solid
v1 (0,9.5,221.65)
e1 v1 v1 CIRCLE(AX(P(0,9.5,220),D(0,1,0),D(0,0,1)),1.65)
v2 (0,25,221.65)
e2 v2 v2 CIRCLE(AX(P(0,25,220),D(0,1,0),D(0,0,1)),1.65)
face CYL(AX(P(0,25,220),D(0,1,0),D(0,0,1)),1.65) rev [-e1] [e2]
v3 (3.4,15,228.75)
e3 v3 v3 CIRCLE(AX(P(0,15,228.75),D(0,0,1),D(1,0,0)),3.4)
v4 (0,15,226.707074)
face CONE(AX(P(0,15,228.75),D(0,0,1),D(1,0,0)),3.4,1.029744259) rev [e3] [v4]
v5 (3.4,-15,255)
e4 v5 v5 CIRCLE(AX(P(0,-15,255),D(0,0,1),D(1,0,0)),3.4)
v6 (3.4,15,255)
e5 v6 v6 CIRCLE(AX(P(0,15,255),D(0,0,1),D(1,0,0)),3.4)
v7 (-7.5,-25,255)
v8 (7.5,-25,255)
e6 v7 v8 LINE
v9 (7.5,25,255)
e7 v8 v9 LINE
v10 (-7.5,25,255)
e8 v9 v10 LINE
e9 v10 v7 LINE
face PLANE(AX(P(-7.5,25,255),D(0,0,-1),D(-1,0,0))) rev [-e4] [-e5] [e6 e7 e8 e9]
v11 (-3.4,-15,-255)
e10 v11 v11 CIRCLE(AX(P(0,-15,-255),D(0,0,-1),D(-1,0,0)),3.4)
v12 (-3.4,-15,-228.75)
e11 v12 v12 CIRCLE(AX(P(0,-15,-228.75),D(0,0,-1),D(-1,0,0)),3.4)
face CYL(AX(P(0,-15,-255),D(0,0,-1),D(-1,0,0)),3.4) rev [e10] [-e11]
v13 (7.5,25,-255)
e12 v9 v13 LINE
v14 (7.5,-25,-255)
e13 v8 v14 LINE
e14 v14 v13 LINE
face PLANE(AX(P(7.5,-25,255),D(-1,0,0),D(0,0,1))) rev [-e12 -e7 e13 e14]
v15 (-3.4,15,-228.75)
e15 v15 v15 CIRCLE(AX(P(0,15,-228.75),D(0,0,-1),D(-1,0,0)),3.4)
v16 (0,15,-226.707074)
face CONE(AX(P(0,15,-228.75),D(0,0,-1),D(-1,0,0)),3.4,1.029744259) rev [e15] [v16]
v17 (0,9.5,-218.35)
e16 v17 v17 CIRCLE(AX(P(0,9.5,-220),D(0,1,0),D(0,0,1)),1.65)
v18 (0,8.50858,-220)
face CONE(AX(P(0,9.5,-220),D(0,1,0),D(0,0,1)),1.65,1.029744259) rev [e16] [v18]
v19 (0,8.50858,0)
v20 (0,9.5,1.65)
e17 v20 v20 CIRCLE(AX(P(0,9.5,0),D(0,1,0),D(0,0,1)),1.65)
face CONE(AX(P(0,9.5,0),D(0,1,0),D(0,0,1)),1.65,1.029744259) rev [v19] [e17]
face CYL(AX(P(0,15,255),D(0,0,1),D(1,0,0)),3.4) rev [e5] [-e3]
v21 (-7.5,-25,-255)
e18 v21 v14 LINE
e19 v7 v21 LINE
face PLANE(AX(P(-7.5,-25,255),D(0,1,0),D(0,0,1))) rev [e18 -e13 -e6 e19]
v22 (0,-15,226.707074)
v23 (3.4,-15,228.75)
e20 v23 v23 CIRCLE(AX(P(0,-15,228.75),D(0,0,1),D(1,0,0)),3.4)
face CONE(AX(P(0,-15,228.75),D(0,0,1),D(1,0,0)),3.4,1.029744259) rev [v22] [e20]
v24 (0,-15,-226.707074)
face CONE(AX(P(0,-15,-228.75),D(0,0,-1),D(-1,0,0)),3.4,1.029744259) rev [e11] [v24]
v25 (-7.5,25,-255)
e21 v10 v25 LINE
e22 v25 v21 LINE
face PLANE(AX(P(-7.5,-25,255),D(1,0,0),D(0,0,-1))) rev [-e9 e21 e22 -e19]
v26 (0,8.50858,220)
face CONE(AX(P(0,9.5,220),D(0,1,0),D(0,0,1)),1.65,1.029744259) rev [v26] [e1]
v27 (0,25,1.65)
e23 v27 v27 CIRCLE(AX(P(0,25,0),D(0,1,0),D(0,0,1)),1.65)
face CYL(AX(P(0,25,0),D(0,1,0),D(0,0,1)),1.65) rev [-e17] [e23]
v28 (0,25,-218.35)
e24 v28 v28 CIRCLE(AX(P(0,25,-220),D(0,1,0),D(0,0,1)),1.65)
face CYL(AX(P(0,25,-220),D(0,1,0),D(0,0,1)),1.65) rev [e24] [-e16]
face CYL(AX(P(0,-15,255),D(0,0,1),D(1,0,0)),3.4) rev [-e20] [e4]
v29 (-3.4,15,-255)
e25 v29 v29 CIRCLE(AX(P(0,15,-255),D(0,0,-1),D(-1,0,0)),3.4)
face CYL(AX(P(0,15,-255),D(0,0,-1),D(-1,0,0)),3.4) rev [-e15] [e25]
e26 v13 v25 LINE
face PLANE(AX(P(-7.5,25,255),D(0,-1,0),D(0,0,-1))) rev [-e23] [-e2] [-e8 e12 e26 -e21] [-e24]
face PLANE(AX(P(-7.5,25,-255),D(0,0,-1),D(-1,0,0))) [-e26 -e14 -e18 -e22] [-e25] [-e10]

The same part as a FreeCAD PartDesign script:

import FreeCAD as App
import Part
import Sketcher
from FreeCAD import Vector
Q = App.Units.Quantity


def add_polygon(sketch, points):
    """Adds a closed chain of lines whose ends are joined by coincident constraints."""
    first, n = sketch.GeometryCount, len(points)
    for a, b in zip(points, points[1:] + points[:1]):
        sketch.addGeometry(Part.LineSegment(App.Vector(*a, 0), App.Vector(*b, 0)), False)
    for i in range(n):
        sketch.addConstraint(Sketcher.Constraint("Coincident", first + i, 2, first + (i + 1) % n, 1))

doc = App.newDocument("Part")
body = doc.addObject("PartDesign::Body", "Body")

# Sketch on XY plane
sketch1 = doc.addObject("Sketcher::SketchObject", "Sketch")
body.addObject(sketch1)
sketch1.AttachmentSupport = (doc.XY_Plane, [""])
sketch1.MapMode = "FlatFace"
add_polygon(sketch1, [(-8, 25), (-8, -25), (8, -25), (8, 25)])  # lines 0-3
sketch1.addConstraint([
    Sketcher.Constraint("Vertical", 0),
    Sketcher.Constraint("Horizontal", 1),
    Sketcher.Constraint("Vertical", 2),
    Sketcher.Constraint("Horizontal", 3),
    Sketcher.Constraint("Symmetric", 0, 2, 2, 2, -1, 1),
    Sketcher.Constraint("DistanceX", 1, 1, 1, 2, Q("15 mm")),
    Sketcher.Constraint("DistanceY", 0, 2, 0, 1, Q("50 mm")),
])
pad1 = doc.addObject("PartDesign::Pad", "Pad")
body.addObject(pad1)
pad1.Profile = sketch1
pad1.Length = 510
pad1.Midplane = True

# Sketch on YZ plane
sketch2 = doc.addObject("Sketcher::SketchObject", "Sketch001")
body.addObject(sketch2)
sketch2.AttachmentSupport = (doc.YZ_Plane, [""])
sketch2.MapMode = "FlatFace"
add_polygon(sketch2, [(15, 226.7), (15, 255), (11.6, 255), (11.6, 228.8)])  # lines 0-3
sketch2.addGeometry(Part.LineSegment(Vector(15, 255, 0), Vector(15, 226.7, 0)), True)  # axis
sketch2.addConstraint([
    Sketcher.Constraint("Vertical", 0),
    Sketcher.Constraint("Horizontal", 1),
    Sketcher.Constraint("Vertical", 2),
    Sketcher.Constraint("Vertical", 4),
    Sketcher.Constraint("Coincident", 4, 1, 0, 2),
    Sketcher.Constraint("Equal", 0, 4),
    Sketcher.Constraint("Angle", 3, Q("-31 deg")),
    Sketcher.Constraint("DistanceX", 1, 2, 1, 1, Q("3.4 mm")),
    Sketcher.Constraint("DistanceX", -1, 1, 0, 2, Q("15 mm")),
    Sketcher.Constraint("DistanceY", -1, 1, 0, 2, Q("255 mm")),
    Sketcher.Constraint("DistanceY", 2, 2, 2, 1, Q("26.25 mm")),
])
groove = doc.addObject("PartDesign::Groove", "Groove")
body.addObject(groove)
groove.Profile = sketch2
groove.ReferenceAxis = (sketch2, ["Axis0"])
groove.Angle = 360
doc.recompute()

linearpattern = doc.addObject("PartDesign::LinearPattern", "LinearPattern")
body.addObject(linearpattern)
linearpattern.Originals = [groove]
linearpattern.Direction = (doc.Y_Axis, [""])
linearpattern.Mode = "offset"
linearpattern.Offset = 30
linearpattern.Occurrences = 2
linearpattern.Reversed = True
body.Tip = linearpattern
doc.recompute()

mirrored = doc.addObject("PartDesign::Mirrored", "Mirrored")
body.addObject(mirrored)
mirrored.Originals = [groove]
mirrored.MirrorPlane = (doc.XY_Plane, [""])
body.Tip = mirrored

# Sketch on YZ plane
sketch3 = doc.addObject("Sketcher::SketchObject", "Sketch002")
body.addObject(sketch3)
sketch3.AttachmentSupport = (doc.YZ_Plane, [""])
sketch3.MapMode = "FlatFace"
add_polygon(sketch3, [(-15, -255), (-15, -226.7), (-18.4, -228.8), (-18.4, -255)])  # lines 0-3
sketch3.addGeometry(Part.LineSegment(Vector(-15, -226.7, 0), Vector(-15, -255, 0)), True)  # axis
sketch3.addConstraint([
    Sketcher.Constraint("Vertical", 0),
    Sketcher.Constraint("Vertical", 2),
    Sketcher.Constraint("Horizontal", 3),
    Sketcher.Constraint("Vertical", 4),
    Sketcher.Constraint("Coincident", 4, 1, 0, 2),
    Sketcher.Constraint("Horizontal", 2, 2, 4, 2),
    Sketcher.Constraint("Angle", 1, Q("-149 deg")),
    Sketcher.Constraint("DistanceX", 3, 1, 3, 2, Q("3.4 mm")),
    Sketcher.Constraint("DistanceX", 0, 2, -1, 1, Q("15 mm")),
    Sketcher.Constraint("DistanceY", 2, 2, -1, 1, Q("255 mm")),
    Sketcher.Constraint("DistanceY", 2, 2, 2, 1, Q("26.25 mm")),
])
groove2 = doc.addObject("PartDesign::Groove", "Groove001")
body.addObject(groove2)
groove2.Profile = sketch3
groove2.ReferenceAxis = (sketch3, ["Axis0"])
groove2.Angle = 360

# Sketch on XZ plane
sketch4 = doc.addObject("Sketcher::SketchObject", "Sketch003")
body.addObject(sketch4)
sketch4.AttachmentSupport = (doc.XZ_Plane, [""])
sketch4.MapMode = "FlatFace"
sketch4.AttachmentOffset = App.Placement(Vector(0, 0, -25), App.Rotation())
sketch4.addGeometry([
    Part.Circle(Vector(0, 0, 0), Vector(0, 0, 1), 1.6),
    Part.Circle(Vector(0, -220, 0), Vector(0, 0, 1), 1.6),
    Part.Circle(Vector(0, 220, 0), Vector(0, 0, 1), 1.6),
], False)
sketch4.addConstraint([
    Sketcher.Constraint("Coincident", 0, 3, -1, 1),
    Sketcher.Constraint("Equal", 0, 1),
    Sketcher.Constraint("Equal", 1, 2),
    Sketcher.Constraint("Symmetric", 1, 3, 2, 3, -1, 1),
    Sketcher.Constraint("PointOnObject", 1, 3, -2),
    Sketcher.Constraint("Diameter", 0, Q("3.3 mm")),
    Sketcher.Constraint("DistanceY", 1, 3, -1, 1, Q("220 mm")),
])
doc.recompute()
hole = doc.addObject("PartDesign::Hole", "Hole")
body.addObject(hole)
hole.Profile = sketch4
hole.ThreadType = "None"
hole.Diameter = 3.3
hole.DepthType = "Dimension"
hole.Depth = 15.5
hole.DrillPoint = "Angled"
hole.DrillPointAngle = 118
hole.Reversed = True

doc.recompute()
